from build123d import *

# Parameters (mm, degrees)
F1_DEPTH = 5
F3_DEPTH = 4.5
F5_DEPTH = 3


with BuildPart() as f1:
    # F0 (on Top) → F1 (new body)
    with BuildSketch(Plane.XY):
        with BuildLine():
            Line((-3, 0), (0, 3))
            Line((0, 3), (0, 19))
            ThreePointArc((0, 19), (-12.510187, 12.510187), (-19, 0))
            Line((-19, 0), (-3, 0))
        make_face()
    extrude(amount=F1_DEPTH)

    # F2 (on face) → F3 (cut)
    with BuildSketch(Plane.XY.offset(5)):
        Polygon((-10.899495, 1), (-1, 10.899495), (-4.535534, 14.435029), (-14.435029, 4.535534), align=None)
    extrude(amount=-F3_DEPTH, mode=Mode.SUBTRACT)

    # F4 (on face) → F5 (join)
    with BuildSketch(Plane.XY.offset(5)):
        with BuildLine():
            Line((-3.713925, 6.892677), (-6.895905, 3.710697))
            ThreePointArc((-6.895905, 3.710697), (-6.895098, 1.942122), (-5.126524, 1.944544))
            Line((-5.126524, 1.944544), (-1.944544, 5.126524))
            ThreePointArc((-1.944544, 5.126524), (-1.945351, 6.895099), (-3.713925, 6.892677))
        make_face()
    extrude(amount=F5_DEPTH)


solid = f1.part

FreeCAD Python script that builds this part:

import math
import FreeCAD as App
import Part
import Sketcher

V = App.Vector
Q = App.Units.Quantity


def add_polygon(sketch, points):
    """Adds a closed chain of lines whose ends are joined by coincident constraints."""
    first, n = sketch.GeometryCount, len(points)
    for a, b in zip(points, points[1:] + points[:1]):
        sketch.addGeometry(Part.LineSegment(App.Vector(*a, 0), App.Vector(*b, 0)), False)
    for i in range(n):
        sketch.addConstraint(Sketcher.Constraint("Coincident", first + i, 2, first + (i + 1) % n, 1))

doc = App.newDocument("Part")
params = doc.addObject("Spreadsheet::Sheet", "Params")
for row, (alias, value) in enumerate([
    ("sketch1_width", "16 mm"),
    ("pad1_length", "5 mm"),
    ("sketch2_length", "14 mm"),
    ("sketch2_length2", "5 mm"),
    ("pocket1_length", "4.5 mm"),
    ("sketch3_radius", "1.250001 mm"),
    ("sketch3_length", "4.499999 mm"),
    ("pad2_length", "3 mm"),
], start=1):
    params.set(f"A{row}", alias)
    params.set(f"B{row}", "=" + value)
    params.setAlias(f"B{row}", alias)

body = doc.addObject("PartDesign::Body", "Body")

sketch1 = body.newObject("Sketcher::SketchObject", "Sketch")
sketch1.AttachmentSupport = (doc.getObject("XY_Plane"), [""])
sketch1.MapMode = "FlatFace"
sketch1.addGeometry(Part.LineSegment(V(-3, 0, 0), V(0, 3, 0)), False)
sketch1.addGeometry(Part.LineSegment(V(0, 3, 0), V(0, 19, 0)), False)
sketch1.addGeometry(Part.ArcOfCircle(Part.Circle(V(4, -4, 0), V(0, 0, 1), 23.3), math.radians(100), math.radians(170)), False)
sketch1.addGeometry(Part.LineSegment(V(-19, 0, 0), V(-3, 0, 0)), False)
sketch1.addConstraint(Sketcher.Constraint("Coincident", 0, 2, 1, 1))
sketch1.addConstraint(Sketcher.Constraint("Coincident", 1, 2, 2, 1))
sketch1.addConstraint(Sketcher.Constraint("Coincident", 2, 2, 3, 1))
sketch1.addConstraint(Sketcher.Constraint("Coincident", 3, 2, 0, 1))
sketch1.addConstraint(Sketcher.Constraint("Vertical", 1))
sketch1.addConstraint(Sketcher.Constraint("Horizontal", 3))
sketch1.addConstraint(Sketcher.Constraint("PointOnObject", 0, 2, -2))
sketch1.addConstraint(Sketcher.Constraint("PointOnObject", 2, 2, -1))
sketch1.addConstraint(Sketcher.Constraint("Equal", 3, 1))
sketch1.addConstraint(Sketcher.Constraint("DistanceX", 3, 1, 3, 2, 16.0))
sketch1.addConstraint(Sketcher.Constraint("Angle", 0, Q("45 deg")))
sketch1.addConstraint(Sketcher.Constraint("DistanceY", -1, 1, 0, 2, 3.0))
sketch1.addConstraint(Sketcher.Constraint("Radius", 2, 23.328664))
sketch1.setExpression("Constraints[9]", "Params.sketch1_width")
pad1 = body.newObject("PartDesign::Pad", "Pad")
pad1.Profile = sketch1
pad1.setExpression("Length", "Params.pad1_length")

sketch2 = body.newObject("Sketcher::SketchObject", "Sketch001")
sketch2.AttachmentSupport = (doc.getObject("XY_Plane"), [""])
sketch2.MapMode = "FlatFace"
sketch2.AttachmentOffset = App.Placement(V(0, 0, 5), App.Rotation())
add_polygon(sketch2, [(-11, 1), (-1, 11), (-5, 14), (-14, 5)])
sketch2.addConstraint(Sketcher.Constraint("Perpendicular", 0, 1))
sketch2.addConstraint(Sketcher.Constraint("Perpendicular", 1, 2))
sketch2.addConstraint(Sketcher.Constraint("Perpendicular", 2, 3))
sketch2.addConstraint(Sketcher.Constraint("Angle", 0, Q("45 deg")))
sketch2.addConstraint(Sketcher.Constraint("Distance", 0, 14.0))
sketch2.addConstraint(Sketcher.Constraint("Distance", 1, 5.0))
sketch2.addConstraint(Sketcher.Constraint("DistanceX", 0, 2, -1, 1, 1.0))
sketch2.addConstraint(Sketcher.Constraint("DistanceY", -1, 1, 3, 2, 1.0))
sketch2.setExpression("Constraints[8]", "Params.sketch2_length")
sketch2.setExpression("Constraints[9]", "Params.sketch2_length2")
pocket1 = body.newObject("PartDesign::Pocket", "Pocket")
pocket1.Profile = sketch2
pocket1.setExpression("Length", "Params.pocket1_length")

sketch3 = body.newObject("Sketcher::SketchObject", "Sketch002")
sketch3.AttachmentSupport = (doc.getObject("XY_Plane"), [""])
sketch3.MapMode = "FlatFace"
sketch3.AttachmentOffset = App.Placement(V(0, 0, 5), App.Rotation())
sketch3.addGeometry(Part.LineSegment(V(-3.7, 6.9, 0), V(-6.9, 3.7, 0)), False)
sketch3.addGeometry(Part.ArcOfCircle(Part.Circle(V(-6, 2.8, 0), V(0, 0, 1), 1.3), math.radians(135), math.radians(315)), False)
sketch3.addGeometry(Part.LineSegment(V(-5.1, 1.9, 0), V(-1.9, 5.1, 0)), False)
sketch3.addGeometry(Part.ArcOfCircle(Part.Circle(V(-2.8, 6, 0), V(0, 0, 1), 1.3), math.radians(-45), math.radians(135)), False)
sketch3.addConstraint(Sketcher.Constraint("Tangent", 0, 2, 1, 1))
sketch3.addConstraint(Sketcher.Constraint("Coincident", 1, 2, 2, 1))
sketch3.addConstraint(Sketcher.Constraint("Tangent", 2, 2, 3, 1))
sketch3.addConstraint(Sketcher.Constraint("Coincident", 3, 2, 0, 1))
sketch3.addConstraint(Sketcher.Constraint("Equal", 1, 3))
sketch3.addConstraint(Sketcher.Constraint("Equal", 0, 2))
sketch3.addConstraint(Sketcher.Constraint("Angle", 0, Q("-135 deg")))
sketch3.addConstraint(Sketcher.Constraint("Radius", 1, 1.250001))
sketch3.addConstraint(Sketcher.Constraint("Distance", 0, 4.499999))
sketch3.addConstraint(Sketcher.Constraint("DistanceX", 1, 2, 3, 2, 1.412599))
sketch3.addConstraint(Sketcher.Constraint("DistanceX", 1, 3, -1, 1, 6.012021))
sketch3.addConstraint(Sketcher.Constraint("DistanceY", -1, 1, 3, 3, 6.010408))
sketch3.setExpression("Constraints[7]", "Params.sketch3_radius")
sketch3.setExpression("Constraints[8]", "Params.sketch3_length")
pad2 = body.newObject("PartDesign::Pad", "Pad001")
pad2.Profile = sketch3
pad2.setExpression("Length", "Params.pad2_length")

doc.recompute()
